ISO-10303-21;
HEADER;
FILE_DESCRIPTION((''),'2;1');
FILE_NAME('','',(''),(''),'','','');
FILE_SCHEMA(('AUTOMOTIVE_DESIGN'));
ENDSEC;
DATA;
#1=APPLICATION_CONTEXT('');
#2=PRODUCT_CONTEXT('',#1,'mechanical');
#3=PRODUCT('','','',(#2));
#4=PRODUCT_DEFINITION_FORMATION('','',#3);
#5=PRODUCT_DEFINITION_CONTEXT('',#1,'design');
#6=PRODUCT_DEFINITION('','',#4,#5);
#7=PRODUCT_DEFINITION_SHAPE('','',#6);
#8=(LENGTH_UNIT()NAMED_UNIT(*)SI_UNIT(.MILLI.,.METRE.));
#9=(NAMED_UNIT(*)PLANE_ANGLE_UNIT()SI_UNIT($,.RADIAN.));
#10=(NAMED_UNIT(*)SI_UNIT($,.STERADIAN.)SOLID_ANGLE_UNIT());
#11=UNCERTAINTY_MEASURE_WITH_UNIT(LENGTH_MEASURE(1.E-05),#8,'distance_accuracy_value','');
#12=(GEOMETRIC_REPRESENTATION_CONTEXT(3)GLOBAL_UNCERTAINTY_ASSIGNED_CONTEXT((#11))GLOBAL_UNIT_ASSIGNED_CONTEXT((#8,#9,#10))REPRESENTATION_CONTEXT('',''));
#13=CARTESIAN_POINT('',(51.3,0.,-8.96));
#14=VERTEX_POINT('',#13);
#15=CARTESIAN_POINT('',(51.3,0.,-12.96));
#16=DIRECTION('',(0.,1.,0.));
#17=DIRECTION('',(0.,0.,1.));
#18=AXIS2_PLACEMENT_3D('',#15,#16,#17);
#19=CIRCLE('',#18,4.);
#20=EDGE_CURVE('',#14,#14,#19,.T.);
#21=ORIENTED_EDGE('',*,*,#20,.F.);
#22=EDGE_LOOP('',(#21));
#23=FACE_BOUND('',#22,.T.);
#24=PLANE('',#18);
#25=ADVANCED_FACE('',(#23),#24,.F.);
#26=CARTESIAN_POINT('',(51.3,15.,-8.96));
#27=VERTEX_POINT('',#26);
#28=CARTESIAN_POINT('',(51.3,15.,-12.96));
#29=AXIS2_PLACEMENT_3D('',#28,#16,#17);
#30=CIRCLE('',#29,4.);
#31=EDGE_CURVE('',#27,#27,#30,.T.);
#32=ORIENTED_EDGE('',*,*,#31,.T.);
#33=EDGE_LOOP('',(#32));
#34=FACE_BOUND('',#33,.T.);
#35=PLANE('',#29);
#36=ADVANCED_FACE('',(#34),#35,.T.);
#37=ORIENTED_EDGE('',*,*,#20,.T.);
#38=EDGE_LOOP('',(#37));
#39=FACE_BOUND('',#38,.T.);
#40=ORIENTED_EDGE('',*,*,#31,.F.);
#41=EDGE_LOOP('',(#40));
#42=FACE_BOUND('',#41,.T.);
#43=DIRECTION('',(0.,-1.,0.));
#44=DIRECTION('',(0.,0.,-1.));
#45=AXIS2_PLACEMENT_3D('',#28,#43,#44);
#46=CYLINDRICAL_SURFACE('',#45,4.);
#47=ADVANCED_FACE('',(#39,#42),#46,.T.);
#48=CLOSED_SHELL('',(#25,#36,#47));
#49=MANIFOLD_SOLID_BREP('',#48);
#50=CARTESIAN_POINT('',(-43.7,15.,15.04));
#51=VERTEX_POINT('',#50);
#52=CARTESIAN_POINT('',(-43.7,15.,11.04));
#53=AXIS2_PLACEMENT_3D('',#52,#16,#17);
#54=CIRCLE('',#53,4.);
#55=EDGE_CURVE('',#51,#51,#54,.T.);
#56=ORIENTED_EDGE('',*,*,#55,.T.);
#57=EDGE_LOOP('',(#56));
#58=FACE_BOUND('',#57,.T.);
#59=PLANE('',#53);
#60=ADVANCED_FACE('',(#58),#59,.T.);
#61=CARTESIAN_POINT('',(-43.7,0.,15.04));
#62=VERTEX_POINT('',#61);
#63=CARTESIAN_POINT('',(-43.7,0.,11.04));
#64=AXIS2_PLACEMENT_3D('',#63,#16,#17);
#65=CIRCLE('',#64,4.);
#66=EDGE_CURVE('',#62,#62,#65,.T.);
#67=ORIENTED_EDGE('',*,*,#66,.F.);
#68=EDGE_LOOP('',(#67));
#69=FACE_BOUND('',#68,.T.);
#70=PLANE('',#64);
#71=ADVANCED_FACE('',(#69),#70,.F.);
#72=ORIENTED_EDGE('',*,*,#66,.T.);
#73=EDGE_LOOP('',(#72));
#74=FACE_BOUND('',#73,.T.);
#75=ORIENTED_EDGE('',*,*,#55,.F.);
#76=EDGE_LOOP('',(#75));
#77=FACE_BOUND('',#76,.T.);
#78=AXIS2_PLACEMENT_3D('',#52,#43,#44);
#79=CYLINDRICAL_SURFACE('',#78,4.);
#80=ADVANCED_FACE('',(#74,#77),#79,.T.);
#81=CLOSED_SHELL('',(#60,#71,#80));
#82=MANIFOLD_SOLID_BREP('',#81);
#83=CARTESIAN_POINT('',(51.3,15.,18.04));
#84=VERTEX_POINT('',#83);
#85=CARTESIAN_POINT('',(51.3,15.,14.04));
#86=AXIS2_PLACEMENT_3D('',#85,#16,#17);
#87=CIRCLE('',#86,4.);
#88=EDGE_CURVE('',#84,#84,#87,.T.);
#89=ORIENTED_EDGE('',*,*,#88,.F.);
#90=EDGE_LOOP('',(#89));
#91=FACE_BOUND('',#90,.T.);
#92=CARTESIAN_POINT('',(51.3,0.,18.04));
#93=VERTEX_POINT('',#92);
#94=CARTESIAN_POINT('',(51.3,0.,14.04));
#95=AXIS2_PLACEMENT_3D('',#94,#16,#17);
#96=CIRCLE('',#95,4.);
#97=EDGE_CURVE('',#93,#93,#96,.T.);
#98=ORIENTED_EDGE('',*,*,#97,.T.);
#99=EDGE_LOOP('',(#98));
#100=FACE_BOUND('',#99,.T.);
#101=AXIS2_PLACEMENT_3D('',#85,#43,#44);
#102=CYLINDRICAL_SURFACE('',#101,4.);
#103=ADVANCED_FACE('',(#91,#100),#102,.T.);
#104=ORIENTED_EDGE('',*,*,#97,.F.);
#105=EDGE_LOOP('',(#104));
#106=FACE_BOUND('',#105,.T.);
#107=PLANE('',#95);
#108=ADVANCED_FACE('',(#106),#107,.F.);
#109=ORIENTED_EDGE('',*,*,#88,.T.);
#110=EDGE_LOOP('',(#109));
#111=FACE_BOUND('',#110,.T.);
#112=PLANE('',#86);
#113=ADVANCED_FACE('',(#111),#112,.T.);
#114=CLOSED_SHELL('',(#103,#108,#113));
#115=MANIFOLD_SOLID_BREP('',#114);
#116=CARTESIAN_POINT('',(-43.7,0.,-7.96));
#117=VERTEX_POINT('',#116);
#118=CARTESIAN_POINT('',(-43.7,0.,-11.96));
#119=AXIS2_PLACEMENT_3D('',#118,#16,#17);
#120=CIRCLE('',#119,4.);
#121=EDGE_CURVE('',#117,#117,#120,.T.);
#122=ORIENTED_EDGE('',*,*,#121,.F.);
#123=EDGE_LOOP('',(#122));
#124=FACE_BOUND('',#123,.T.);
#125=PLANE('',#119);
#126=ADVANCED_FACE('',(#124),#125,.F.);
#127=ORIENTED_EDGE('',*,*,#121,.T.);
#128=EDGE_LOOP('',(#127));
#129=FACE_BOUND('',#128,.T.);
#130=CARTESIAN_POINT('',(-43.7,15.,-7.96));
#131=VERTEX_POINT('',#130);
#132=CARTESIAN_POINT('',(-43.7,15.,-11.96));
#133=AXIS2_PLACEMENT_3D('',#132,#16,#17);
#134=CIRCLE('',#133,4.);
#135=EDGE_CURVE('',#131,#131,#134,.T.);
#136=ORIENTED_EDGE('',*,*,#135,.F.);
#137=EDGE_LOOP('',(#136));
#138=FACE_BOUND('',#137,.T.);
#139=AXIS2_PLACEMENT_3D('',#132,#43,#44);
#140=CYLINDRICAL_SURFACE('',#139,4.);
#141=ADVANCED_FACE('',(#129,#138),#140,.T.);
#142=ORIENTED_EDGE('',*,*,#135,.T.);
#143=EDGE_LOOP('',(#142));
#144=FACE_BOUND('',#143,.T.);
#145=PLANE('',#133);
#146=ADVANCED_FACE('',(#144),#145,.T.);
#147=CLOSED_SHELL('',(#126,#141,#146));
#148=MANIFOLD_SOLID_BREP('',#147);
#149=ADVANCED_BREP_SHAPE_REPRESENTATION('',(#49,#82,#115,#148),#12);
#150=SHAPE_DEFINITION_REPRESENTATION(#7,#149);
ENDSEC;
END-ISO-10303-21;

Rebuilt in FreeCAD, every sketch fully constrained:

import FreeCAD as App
import Part
import Sketcher

doc = App.newDocument("Part")
body = doc.addObject("PartDesign::Body", "Body")

sketch1 = body.newObject("Sketcher::SketchObject", "Sketch")
sketch1.AttachmentSupport = (doc.getObject("XZ_Plane"), [""])
sketch1.MapMode = "FlatFace"
sketch1.addGeometry(Part.Circle(App.Vector(-43.7, -12, 0), App.Vector(0, 0, 1), 4), False)
sketch1.addConstraint([
    Sketcher.Constraint("Diameter", 0, 8.0),
    Sketcher.Constraint("DistanceX", 0, 3, -1, 1, 43.7),
    Sketcher.Constraint("DistanceY", 0, 3, -1, 1, 11.96),
])
pad1 = body.newObject("PartDesign::Pad", "Pad")
pad1.Profile = sketch1
pad1.Length = 15
pad1.Reversed = True
body2 = doc.addObject("PartDesign::Body", "Body001")

sketch2 = body2.newObject("Sketcher::SketchObject", "Sketch001")
sketch2.AttachmentSupport = (doc.getObject("XZ_Plane001"), [""])
sketch2.MapMode = "FlatFace"
sketch2.addGeometry(Part.Circle(App.Vector(-43.7, 11, 0), App.Vector(0, 0, 1), 4), False)
sketch2.addConstraint([
    Sketcher.Constraint("Diameter", 0, 8.0),
    Sketcher.Constraint("DistanceX", 0, 3, -1, 1, 43.7),
    Sketcher.Constraint("DistanceY", -1, 1, 0, 3, 11.04),
])
pad2 = body2.newObject("PartDesign::Pad", "Pad001")
pad2.Profile = sketch2
pad2.Length = 15
pad2.Reversed = True
body3 = doc.addObject("PartDesign::Body", "Body002")

sketch3 = body3.newObject("Sketcher::SketchObject", "Sketch002")
sketch3.AttachmentSupport = (doc.getObject("XZ_Plane002"), [""])
sketch3.MapMode = "FlatFace"
sketch3.addGeometry(Part.Circle(App.Vector(51.3, 14, 0), App.Vector(0, 0, 1), 4), False)
sketch3.addConstraint([
    Sketcher.Constraint("Diameter", 0, 8.0),
    Sketcher.Constraint("DistanceX", -1, 1, 0, 3, 51.3),
    Sketcher.Constraint("DistanceY", -1, 1, 0, 3, 14.04),
])
pad3 = body3.newObject("PartDesign::Pad", "Pad002")
pad3.Profile = sketch3
pad3.Length = 15
pad3.Reversed = True
body4 = doc.addObject("PartDesign::Body", "Body003")

sketch4 = body4.newObject("Sketcher::SketchObject", "Sketch003")
sketch4.AttachmentSupport = (doc.getObject("XZ_Plane003"), [""])
sketch4.MapMode = "FlatFace"
sketch4.addGeometry(Part.Circle(App.Vector(51.3, -13, 0), App.Vector(0, 0, 1), 4), False)
sketch4.addConstraint([
    Sketcher.Constraint("Diameter", 0, 8.0),
    Sketcher.Constraint("DistanceX", -1, 1, 0, 3, 51.3),
    Sketcher.Constraint("DistanceY", 0, 3, -1, 1, 12.96),
])
pad4 = body4.newObject("PartDesign::Pad", "Pad003")
pad4.Profile = sketch4
pad4.Length = 15
pad4.Reversed = True

doc.recompute()
